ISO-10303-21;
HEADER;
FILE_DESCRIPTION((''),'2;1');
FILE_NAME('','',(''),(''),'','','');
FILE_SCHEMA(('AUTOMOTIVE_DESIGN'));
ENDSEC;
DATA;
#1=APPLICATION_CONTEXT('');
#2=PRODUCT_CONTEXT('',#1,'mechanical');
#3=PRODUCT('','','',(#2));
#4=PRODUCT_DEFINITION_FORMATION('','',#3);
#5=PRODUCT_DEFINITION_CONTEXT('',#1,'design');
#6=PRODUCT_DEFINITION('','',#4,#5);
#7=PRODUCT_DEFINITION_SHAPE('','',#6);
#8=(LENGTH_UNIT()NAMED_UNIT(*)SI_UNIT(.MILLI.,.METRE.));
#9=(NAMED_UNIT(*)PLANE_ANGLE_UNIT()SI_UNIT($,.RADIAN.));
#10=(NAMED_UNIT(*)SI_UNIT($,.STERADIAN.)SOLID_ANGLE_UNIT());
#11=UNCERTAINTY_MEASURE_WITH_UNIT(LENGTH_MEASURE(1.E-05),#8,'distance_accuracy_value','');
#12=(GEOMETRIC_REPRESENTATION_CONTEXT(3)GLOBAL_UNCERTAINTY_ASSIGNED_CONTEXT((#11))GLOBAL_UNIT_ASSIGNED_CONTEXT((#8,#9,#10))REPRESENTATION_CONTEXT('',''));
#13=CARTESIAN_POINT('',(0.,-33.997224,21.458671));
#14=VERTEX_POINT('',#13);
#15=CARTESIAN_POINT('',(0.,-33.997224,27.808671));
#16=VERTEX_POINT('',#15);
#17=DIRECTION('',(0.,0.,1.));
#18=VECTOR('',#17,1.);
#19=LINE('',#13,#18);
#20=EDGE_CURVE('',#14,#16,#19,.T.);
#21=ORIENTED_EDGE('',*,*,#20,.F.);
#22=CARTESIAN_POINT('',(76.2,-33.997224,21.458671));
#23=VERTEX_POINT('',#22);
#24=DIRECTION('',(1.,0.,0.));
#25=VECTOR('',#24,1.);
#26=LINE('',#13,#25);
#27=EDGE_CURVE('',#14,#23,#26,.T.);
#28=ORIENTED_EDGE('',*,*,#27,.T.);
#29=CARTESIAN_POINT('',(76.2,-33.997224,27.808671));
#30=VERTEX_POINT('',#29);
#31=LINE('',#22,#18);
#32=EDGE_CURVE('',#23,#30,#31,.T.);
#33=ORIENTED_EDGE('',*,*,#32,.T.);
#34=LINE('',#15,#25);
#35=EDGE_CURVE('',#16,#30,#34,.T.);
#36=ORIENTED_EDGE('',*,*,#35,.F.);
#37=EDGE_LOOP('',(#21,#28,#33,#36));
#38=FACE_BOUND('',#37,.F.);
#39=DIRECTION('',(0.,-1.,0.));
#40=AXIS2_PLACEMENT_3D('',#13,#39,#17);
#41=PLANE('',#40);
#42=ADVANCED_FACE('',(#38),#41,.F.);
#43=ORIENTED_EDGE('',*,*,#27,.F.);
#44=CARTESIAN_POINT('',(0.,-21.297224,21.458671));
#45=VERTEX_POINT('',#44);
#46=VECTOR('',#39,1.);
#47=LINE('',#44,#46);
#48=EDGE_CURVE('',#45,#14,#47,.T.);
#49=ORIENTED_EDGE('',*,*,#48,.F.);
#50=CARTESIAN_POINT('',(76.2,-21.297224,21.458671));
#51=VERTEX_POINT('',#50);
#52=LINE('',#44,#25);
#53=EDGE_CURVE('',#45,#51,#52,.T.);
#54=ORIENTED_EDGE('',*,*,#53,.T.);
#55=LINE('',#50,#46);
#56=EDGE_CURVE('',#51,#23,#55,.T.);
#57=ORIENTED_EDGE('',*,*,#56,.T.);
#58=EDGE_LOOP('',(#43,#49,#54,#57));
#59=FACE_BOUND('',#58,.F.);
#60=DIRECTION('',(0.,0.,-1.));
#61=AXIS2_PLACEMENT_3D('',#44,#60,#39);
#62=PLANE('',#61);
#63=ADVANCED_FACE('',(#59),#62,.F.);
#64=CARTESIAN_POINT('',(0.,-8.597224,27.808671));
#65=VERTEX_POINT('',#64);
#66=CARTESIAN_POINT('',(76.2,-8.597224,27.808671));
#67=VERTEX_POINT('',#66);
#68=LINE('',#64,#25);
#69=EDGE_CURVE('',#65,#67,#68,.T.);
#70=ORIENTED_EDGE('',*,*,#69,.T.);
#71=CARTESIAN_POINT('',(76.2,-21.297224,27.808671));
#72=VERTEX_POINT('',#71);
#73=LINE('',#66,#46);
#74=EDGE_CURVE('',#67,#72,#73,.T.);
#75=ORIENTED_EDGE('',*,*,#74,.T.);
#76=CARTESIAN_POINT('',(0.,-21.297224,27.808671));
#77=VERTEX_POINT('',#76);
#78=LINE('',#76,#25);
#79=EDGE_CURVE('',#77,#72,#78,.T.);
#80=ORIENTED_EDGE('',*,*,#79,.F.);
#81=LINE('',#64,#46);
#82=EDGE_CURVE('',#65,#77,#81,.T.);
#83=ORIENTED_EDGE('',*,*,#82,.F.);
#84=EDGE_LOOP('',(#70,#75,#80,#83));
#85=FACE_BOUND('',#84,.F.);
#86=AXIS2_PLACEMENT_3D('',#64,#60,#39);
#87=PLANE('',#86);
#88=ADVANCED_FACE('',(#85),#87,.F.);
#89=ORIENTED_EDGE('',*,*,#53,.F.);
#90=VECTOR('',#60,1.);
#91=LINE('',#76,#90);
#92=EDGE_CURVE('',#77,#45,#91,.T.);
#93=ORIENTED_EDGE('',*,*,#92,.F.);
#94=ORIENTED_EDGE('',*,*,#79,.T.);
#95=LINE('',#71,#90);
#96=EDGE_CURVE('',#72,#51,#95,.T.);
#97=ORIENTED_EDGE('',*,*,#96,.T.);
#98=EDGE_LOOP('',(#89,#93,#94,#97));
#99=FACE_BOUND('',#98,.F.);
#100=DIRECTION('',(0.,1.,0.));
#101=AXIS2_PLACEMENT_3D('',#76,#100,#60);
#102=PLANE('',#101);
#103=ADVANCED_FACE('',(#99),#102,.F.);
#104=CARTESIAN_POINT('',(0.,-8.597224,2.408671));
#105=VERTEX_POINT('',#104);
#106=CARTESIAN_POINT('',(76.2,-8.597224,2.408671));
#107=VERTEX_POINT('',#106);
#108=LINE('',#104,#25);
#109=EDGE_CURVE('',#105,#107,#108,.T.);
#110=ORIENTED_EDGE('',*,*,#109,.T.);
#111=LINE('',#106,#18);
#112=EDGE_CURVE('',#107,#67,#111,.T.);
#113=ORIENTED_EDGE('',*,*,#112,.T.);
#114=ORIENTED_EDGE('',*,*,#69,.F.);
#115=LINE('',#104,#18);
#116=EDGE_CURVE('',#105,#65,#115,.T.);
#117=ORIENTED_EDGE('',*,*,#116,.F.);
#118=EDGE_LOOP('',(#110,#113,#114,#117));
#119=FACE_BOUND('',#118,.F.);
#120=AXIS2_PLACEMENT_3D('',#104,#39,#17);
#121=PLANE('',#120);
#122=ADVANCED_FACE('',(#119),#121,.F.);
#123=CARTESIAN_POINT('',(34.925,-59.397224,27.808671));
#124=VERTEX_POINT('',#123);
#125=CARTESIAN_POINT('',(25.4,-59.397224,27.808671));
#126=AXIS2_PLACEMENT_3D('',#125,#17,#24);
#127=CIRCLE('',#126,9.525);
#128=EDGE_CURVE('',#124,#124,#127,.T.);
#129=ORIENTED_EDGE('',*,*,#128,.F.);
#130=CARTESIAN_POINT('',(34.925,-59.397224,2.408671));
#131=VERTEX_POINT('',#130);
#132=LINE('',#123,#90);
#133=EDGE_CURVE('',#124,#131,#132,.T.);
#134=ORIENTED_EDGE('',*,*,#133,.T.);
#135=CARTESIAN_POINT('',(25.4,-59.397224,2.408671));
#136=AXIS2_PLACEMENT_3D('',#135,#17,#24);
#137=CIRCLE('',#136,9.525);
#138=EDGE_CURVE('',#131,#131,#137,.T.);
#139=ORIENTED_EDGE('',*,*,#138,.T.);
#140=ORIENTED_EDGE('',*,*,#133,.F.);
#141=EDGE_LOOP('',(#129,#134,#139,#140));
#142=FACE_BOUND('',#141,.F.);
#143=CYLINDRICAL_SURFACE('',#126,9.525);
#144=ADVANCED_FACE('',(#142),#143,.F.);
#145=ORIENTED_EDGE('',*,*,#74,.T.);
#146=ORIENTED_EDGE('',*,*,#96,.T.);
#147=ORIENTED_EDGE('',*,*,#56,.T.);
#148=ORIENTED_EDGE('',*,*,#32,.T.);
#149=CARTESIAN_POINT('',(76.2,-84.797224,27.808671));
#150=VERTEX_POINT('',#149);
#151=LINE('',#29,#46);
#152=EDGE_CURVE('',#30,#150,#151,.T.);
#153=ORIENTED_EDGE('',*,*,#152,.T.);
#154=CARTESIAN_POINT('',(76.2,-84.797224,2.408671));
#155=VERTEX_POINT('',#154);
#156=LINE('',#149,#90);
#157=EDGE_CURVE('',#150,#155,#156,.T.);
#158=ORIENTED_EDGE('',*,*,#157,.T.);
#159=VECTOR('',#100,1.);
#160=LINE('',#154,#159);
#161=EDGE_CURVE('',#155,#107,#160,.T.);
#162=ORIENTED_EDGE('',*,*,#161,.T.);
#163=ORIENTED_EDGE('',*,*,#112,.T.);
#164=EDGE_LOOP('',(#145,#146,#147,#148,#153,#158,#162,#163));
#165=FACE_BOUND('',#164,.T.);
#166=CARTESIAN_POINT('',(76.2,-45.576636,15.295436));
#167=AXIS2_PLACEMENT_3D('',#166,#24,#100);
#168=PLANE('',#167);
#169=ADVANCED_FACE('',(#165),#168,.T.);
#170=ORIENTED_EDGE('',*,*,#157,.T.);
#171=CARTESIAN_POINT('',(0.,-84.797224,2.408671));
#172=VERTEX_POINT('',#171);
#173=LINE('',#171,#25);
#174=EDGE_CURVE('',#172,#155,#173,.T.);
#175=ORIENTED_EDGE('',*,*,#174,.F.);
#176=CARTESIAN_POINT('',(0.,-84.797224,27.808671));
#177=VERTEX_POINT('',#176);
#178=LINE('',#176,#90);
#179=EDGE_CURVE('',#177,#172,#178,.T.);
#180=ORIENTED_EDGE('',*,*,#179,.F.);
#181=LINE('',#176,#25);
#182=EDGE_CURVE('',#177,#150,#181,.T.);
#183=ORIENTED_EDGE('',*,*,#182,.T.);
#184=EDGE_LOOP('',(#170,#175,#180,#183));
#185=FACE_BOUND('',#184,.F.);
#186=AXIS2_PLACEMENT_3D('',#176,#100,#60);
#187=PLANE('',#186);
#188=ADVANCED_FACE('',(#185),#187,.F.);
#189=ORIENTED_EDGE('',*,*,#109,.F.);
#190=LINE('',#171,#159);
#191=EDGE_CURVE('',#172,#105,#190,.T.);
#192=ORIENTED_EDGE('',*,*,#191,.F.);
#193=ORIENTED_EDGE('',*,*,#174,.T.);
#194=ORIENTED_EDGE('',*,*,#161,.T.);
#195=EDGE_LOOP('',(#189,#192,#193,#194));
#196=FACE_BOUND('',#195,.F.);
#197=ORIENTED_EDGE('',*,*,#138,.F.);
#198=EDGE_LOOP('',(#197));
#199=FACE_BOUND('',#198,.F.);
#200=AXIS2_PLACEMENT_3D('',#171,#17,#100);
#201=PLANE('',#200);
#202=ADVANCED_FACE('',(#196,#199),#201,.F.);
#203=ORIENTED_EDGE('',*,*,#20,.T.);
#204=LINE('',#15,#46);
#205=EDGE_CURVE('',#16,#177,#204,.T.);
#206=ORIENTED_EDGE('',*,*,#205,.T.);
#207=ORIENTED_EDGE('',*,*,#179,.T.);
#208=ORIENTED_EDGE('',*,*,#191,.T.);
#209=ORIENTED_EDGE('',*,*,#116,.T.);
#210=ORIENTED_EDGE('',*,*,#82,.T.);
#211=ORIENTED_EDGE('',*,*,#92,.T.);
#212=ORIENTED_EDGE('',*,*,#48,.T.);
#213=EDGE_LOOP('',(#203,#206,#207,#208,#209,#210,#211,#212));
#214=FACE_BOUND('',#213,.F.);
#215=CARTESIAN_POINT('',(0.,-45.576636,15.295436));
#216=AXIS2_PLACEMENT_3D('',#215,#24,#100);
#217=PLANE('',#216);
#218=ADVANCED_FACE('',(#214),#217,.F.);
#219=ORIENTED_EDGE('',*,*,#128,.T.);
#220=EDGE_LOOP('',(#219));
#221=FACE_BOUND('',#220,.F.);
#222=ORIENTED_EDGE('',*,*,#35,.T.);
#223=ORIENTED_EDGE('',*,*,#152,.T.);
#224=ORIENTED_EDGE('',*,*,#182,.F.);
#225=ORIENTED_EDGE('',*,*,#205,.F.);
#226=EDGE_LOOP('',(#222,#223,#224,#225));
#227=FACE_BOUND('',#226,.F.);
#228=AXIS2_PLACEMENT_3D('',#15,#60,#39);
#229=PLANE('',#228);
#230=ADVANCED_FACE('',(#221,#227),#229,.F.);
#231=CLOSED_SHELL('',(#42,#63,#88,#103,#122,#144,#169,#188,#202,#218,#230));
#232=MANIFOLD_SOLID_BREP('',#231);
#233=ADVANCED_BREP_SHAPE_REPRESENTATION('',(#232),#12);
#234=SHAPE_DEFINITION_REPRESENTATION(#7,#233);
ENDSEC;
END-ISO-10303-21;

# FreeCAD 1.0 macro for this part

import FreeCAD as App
import Part
import Sketcher
Q = App.Units.Quantity


def add_polygon(sketch, points):
    """Adds a closed chain of lines whose ends are joined by coincident constraints."""
    first, n = sketch.GeometryCount, len(points)
    for a, b in zip(points, points[1:] + points[:1]):
        sketch.addGeometry(Part.LineSegment(App.Vector(*a, 0), App.Vector(*b, 0)), False)
    for i in range(n):
        sketch.addConstraint(Sketcher.Constraint("Coincident", first + i, 2, first + (i + 1) % n, 1))

doc = App.newDocument("Part")
body = doc.addObject("PartDesign::Body", "Body")

# Sketch on YZ plane
sketch1 = doc.addObject("Sketcher::SketchObject", "Sketch")
body.addObject(sketch1)
sketch1.AttachmentSupport = (doc.YZ_Plane, [""])
sketch1.MapMode = "FlatFace"
add_polygon(sketch1, [(-34, 28), (-85, 28), (-85, 2), (-9, 2), (-9, 28), (-21, 28), (-21, 21), (-34, 21)])  # lines 0-7
sketch1.addConstraint(Sketcher.Constraint("Horizontal", 0))
sketch1.addConstraint(Sketcher.Constraint("Vertical", 1))
sketch1.addConstraint(Sketcher.Constraint("Horizontal", 2))
sketch1.addConstraint(Sketcher.Constraint("Vertical", 3))
sketch1.addConstraint(Sketcher.Constraint("Horizontal", 4))
sketch1.addConstraint(Sketcher.Constraint("Vertical", 5))
sketch1.addConstraint(Sketcher.Constraint("Horizontal", 6))
sketch1.addConstraint(Sketcher.Constraint("Vertical", 7))
sketch1.addConstraint(Sketcher.Constraint("Horizontal", 0, 2, 3, 2))
sketch1.addConstraint(Sketcher.Constraint("Equal", 4, 6))
sketch1.addConstraint(Sketcher.Constraint("DistanceX", 0, 2, 0, 1, Q("2 in")))
sketch1.addConstraint(Sketcher.Constraint("DistanceX", 2, 1, 2, 2, Q("3 in")))
sketch1.addConstraint(Sketcher.Constraint("DistanceY", 1, 2, 1, 1, Q("1 in")))
sketch1.addConstraint(Sketcher.Constraint("DistanceY", 5, 2, 5, 1, Q("0.25 in")))
sketch1.addConstraint(Sketcher.Constraint("DistanceY", -1, 1, 0, 2, Q("27.808671 mm")))
sketch1.addConstraint(Sketcher.Constraint("DistanceX", 0, 2, -1, 1, Q("84.797224 mm")))
pad1 = doc.addObject("PartDesign::Pad", "Pad")
body.addObject(pad1)
pad1.Profile = sketch1
pad1.Length = Q("3 in")

# Sketch on XY plane
sketch2 = doc.addObject("Sketcher::SketchObject", "Sketch001")
body.addObject(sketch2)
sketch2.AttachmentSupport = (doc.XY_Plane, [""])
sketch2.MapMode = "FlatFace"
sketch2.AttachmentOffset = App.Placement(App.Vector(0, 0, 27.808671), App.Rotation())
sketch2.addGeometry(Part.Circle(App.Vector(25, -59, 0), App.Vector(0, 0, 1), 10), False)
sketch2.addConstraint(Sketcher.Constraint("Diameter", 0, Q("0.75 in")))
sketch2.addConstraint(Sketcher.Constraint("DistanceX", -1, 1, 0, 3, Q("1 in")))
sketch2.addConstraint(Sketcher.Constraint("DistanceY", 0, 3, -1, 1, Q("59.397224 mm")))
pocket1 = doc.addObject("PartDesign::Pocket", "Pocket")
body.addObject(pocket1)
pocket1.Profile = sketch2
pocket1.Type = "ThroughAll"

doc.recompute()
